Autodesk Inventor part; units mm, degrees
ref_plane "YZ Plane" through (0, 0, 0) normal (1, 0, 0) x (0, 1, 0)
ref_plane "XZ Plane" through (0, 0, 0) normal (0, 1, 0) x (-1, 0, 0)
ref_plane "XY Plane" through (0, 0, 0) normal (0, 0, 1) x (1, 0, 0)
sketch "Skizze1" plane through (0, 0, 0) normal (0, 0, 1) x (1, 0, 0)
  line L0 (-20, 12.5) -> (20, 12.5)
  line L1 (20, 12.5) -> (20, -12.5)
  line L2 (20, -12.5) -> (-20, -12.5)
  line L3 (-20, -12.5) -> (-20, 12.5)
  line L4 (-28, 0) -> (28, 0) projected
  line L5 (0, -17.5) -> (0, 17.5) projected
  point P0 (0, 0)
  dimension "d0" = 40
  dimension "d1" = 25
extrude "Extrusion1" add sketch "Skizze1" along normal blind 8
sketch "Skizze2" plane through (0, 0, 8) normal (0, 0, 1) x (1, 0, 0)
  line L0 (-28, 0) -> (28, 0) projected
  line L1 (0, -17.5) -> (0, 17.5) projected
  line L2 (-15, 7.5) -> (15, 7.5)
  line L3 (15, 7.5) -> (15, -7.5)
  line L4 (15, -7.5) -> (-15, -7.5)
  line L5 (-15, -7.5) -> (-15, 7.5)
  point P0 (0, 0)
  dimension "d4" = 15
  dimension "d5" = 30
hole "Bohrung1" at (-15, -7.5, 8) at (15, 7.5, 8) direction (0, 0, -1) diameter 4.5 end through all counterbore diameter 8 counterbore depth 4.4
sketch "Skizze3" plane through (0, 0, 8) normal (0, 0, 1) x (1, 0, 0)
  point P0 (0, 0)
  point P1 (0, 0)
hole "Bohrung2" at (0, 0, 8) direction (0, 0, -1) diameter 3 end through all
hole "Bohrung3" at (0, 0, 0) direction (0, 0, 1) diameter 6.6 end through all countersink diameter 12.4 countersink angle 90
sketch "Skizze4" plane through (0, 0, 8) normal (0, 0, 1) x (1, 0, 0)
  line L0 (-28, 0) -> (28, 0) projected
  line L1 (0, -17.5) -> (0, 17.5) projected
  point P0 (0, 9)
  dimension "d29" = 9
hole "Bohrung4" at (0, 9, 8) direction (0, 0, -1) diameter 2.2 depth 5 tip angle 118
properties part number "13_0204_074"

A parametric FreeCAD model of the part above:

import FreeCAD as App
import Part
import Sketcher
from FreeCAD import Vector

doc = App.newDocument("Part")
params = doc.addObject("Spreadsheet::Sheet", "Params")
for row, (alias, value) in enumerate([
    ("sketch1_width", "40 mm"),
    ("sketch1_height", "25 mm"),
    ("pad1_length", "8 mm"),
    ("sketch2_diameter", "4.5 mm"),
    ("hole_diameter", "4.5 mm"),
    ("hole_cbore_diameter", "8 mm"),
    ("hole_cbore_depth", "4.4 mm"),
    ("sketch3_diameter", "3 mm"),
    ("hole2_diameter", "3 mm"),
    ("sketch4_diameter", "6.6 mm"),
    ("hole3_diameter", "6.6 mm"),
    ("hole3_csink_diameter", "12.4 mm"),
    ("sketch5_diameter", "2.2 mm"),
    ("hole4_diameter", "2.2 mm"),
    ("hole4_depth", "5 mm"),
], start=1):
    params.set(f"A{row}", alias)
    params.set(f"B{row}", "=" + value)
    params.setAlias(f"B{row}", alias)

body = doc.addObject("PartDesign::Body", "Body")

# Sketch on XY plane
sketch1 = body.newObject("Sketcher::SketchObject", "Sketch")
sketch1.AttachmentSupport = (doc.getObject("XY_Plane"), [""])
sketch1.MapMode = "FlatFace"
sketch1.addGeometry([
    Part.LineSegment(Vector(-20, 12, 0), Vector(-20, -12, 0)),
    Part.LineSegment(Vector(-20, -12, 0), Vector(20, -12, 0)),
    Part.LineSegment(Vector(20, -12, 0), Vector(20, 12, 0)),
    Part.LineSegment(Vector(20, 12, 0), Vector(-20, 12, 0)),
], False)
sketch1.addConstraint([
    Sketcher.Constraint("Coincident", 0, 2, 1, 1),
    Sketcher.Constraint("Coincident", 1, 2, 2, 1),
    Sketcher.Constraint("Coincident", 2, 2, 3, 1),
    Sketcher.Constraint("Coincident", 3, 2, 0, 1),
    Sketcher.Constraint("Vertical", 0),
    Sketcher.Constraint("Horizontal", 1),
    Sketcher.Constraint("Vertical", 2),
    Sketcher.Constraint("Horizontal", 3),
    Sketcher.Constraint("Symmetric", 0, 2, 2, 2, -1, 1),
    Sketcher.Constraint("DistanceX", 1, 1, 1, 2, 40.0),
    Sketcher.Constraint("DistanceY", 0, 2, 0, 1, 25.0),
])
sketch1.setExpression("Constraints[9]", "Params.sketch1_width")
sketch1.setExpression("Constraints[10]", "Params.sketch1_height")
pad1 = body.newObject("PartDesign::Pad", "Pad")
pad1.Profile = sketch1
pad1.setExpression("Length", "Params.pad1_length")

# Sketch on XY plane
sketch2 = body.newObject("Sketcher::SketchObject", "Sketch001")
sketch2.AttachmentSupport = (doc.getObject("XY_Plane"), [""])
sketch2.MapMode = "FlatFace"
sketch2.AttachmentOffset = App.Placement(Vector(0, 0, 8), App.Rotation())
sketch2.addGeometry([
    Part.Circle(Vector(-15, -7.5, 0), Vector(0, 0, 1), 2.2),
    Part.Circle(Vector(15, 7.5, 0), Vector(0, 0, 1), 2.2),
], False)
sketch2.addConstraint([
    Sketcher.Constraint("Equal", 0, 1),
    Sketcher.Constraint("Symmetric", 0, 3, 1, 3, -1, 1),
    Sketcher.Constraint("Diameter", 0, 4.5),
    Sketcher.Constraint("DistanceX", 0, 3, -1, 1, 15.0),
    Sketcher.Constraint("DistanceY", 0, 3, 1, 3, 15.0),
])
sketch2.setExpression("Constraints[2]", "Params.sketch2_diameter")
doc.recompute()
hole = body.newObject("PartDesign::Hole", "Hole")
hole.Profile = sketch2
hole.ThreadType = "None"
hole.setExpression("Diameter", "Params.hole_diameter")
hole.DepthType = "ThroughAll"
hole.HoleCutType = "Counterbore"
hole.setExpression("HoleCutDiameter", "Params.hole_cbore_diameter")
hole.setExpression("HoleCutDepth", "Params.hole_cbore_depth")

# Sketch on XY plane
sketch3 = body.newObject("Sketcher::SketchObject", "Sketch002")
sketch3.AttachmentSupport = (doc.getObject("XY_Plane"), [""])
sketch3.MapMode = "FlatFace"
sketch3.AttachmentOffset = App.Placement(Vector(0, 0, 8), App.Rotation())
sketch3.addGeometry(Part.Circle(Vector(0, 0, 0), Vector(0, 0, 1), 1.5), False)
sketch3.addConstraint([
    Sketcher.Constraint("Coincident", 0, 3, -1, 1),
    Sketcher.Constraint("Diameter", 0, 3.0),
])
sketch3.setExpression("Constraints[1]", "Params.sketch3_diameter")
doc.recompute()
hole2 = body.newObject("PartDesign::Hole", "Hole001")
hole2.Profile = sketch3
hole2.ThreadType = "None"
hole2.setExpression("Diameter", "Params.hole2_diameter")
hole2.DepthType = "ThroughAll"

# Sketch on XY plane
sketch4 = body.newObject("Sketcher::SketchObject", "Sketch003")
sketch4.AttachmentSupport = (doc.getObject("XY_Plane"), [""])
sketch4.MapMode = "FlatFace"
sketch4.addGeometry(Part.Circle(Vector(0, 0, 0), Vector(0, 0, 1), 3.3), False)
sketch4.addConstraint([
    Sketcher.Constraint("Coincident", 0, 3, -1, 1),
    Sketcher.Constraint("Diameter", 0, 6.6),
])
sketch4.setExpression("Constraints[1]", "Params.sketch4_diameter")
doc.recompute()
hole3 = body.newObject("PartDesign::Hole", "Hole002")
hole3.Profile = sketch4
hole3.ThreadType = "None"
hole3.setExpression("Diameter", "Params.hole3_diameter")
hole3.DepthType = "ThroughAll"
hole3.HoleCutType = "Countersink"
hole3.setExpression("HoleCutDiameter", "Params.hole3_csink_diameter")
hole3.HoleCutCountersinkAngle = 90
hole3.Reversed = True

# Sketch on XY plane
sketch5 = body.newObject("Sketcher::SketchObject", "Sketch004")
sketch5.AttachmentSupport = (doc.getObject("XY_Plane"), [""])
sketch5.MapMode = "FlatFace"
sketch5.AttachmentOffset = App.Placement(Vector(0, 0, 8), App.Rotation())
sketch5.addGeometry(Part.Circle(Vector(0, 9, 0), Vector(0, 0, 1), 1.1), False)
sketch5.addConstraint([
    Sketcher.Constraint("PointOnObject", 0, 3, -2),
    Sketcher.Constraint("Diameter", 0, 2.2),
    Sketcher.Constraint("DistanceY", -1, 1, 0, 3, 9.0),
])
sketch5.setExpression("Constraints[1]", "Params.sketch5_diameter")
doc.recompute()
hole4 = body.newObject("PartDesign::Hole", "Hole003")
hole4.Profile = sketch5
hole4.ThreadType = "None"
hole4.setExpression("Diameter", "Params.hole4_diameter")
hole4.DepthType = "Dimension"
hole4.setExpression("Depth", "Params.hole4_depth")
hole4.DrillPoint = "Angled"
hole4.DrillPointAngle = 118

doc.recompute()
